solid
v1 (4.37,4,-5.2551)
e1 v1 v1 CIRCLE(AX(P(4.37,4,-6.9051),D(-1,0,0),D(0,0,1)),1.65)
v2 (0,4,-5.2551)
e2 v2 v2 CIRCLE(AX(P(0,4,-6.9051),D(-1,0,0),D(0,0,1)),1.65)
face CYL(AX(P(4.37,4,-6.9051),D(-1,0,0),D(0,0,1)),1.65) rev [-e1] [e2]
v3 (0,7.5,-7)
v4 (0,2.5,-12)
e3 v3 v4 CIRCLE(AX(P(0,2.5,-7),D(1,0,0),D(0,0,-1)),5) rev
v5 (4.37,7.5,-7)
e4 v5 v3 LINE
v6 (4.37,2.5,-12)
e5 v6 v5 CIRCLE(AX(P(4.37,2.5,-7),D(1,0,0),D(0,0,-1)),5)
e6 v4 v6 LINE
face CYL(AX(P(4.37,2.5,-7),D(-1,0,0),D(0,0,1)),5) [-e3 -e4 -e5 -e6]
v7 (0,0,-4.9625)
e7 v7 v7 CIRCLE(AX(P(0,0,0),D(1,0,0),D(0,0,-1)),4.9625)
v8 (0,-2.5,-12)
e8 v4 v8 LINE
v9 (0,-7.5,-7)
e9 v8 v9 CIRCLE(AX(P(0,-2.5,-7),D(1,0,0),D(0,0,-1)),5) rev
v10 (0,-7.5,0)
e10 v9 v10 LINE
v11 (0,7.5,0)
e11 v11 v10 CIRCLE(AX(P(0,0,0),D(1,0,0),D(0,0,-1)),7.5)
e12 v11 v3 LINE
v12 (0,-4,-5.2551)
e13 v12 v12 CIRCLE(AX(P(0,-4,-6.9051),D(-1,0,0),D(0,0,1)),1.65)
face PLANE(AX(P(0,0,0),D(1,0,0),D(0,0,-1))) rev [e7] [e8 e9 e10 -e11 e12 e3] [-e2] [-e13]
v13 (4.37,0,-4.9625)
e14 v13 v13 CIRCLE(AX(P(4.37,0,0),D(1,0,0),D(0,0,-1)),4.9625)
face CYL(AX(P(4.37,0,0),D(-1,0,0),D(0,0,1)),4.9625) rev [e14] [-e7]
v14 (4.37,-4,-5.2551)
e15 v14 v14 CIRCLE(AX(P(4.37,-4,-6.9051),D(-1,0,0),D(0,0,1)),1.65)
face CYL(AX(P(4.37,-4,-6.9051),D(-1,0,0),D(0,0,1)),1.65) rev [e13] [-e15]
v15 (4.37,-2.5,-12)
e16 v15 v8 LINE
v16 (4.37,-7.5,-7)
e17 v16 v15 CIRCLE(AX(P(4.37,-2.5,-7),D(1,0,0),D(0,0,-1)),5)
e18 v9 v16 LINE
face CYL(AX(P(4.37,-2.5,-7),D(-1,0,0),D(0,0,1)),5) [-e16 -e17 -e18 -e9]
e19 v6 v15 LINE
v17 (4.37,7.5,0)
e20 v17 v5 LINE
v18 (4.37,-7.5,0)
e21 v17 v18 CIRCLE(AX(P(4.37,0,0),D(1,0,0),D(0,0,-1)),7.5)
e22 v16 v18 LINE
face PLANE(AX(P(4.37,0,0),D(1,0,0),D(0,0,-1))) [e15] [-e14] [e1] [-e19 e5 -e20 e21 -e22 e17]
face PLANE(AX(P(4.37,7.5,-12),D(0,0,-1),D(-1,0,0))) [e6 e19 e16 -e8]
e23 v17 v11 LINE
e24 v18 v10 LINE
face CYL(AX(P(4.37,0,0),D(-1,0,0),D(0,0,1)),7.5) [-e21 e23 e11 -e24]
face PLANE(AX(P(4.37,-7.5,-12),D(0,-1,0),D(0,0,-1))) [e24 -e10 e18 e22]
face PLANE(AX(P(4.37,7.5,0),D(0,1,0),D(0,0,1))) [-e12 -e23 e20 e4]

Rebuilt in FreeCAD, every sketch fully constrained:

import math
import FreeCAD as App
import Part
import Sketcher

V = App.Vector
Q = App.Units.Quantity


def edges_at(feature, points):
    """Names of the edges that pass closest to the given points."""
    edges = feature.Shape.Edges
    near = lambda p: min(range(len(edges)), key=lambda i: edges[i].distToShape(Part.Vertex(*p))[0])
    return sorted({f"Edge{near(p) + 1}" for p in points})

doc = App.newDocument("Part")
body = doc.addObject("PartDesign::Body", "Body")

# Sketch on YZ plane
sketch1 = body.newObject("Sketcher::SketchObject", "Sketch")
sketch1.AttachmentSupport = (doc.getObject("YZ_Plane"), [""])
sketch1.MapMode = "FlatFace"
sketch1.addGeometry([
    Part.LineSegment(V(7.5, -12, 0), V(7.5, 0, 0)),  # 0
    Part.ArcOfCircle(Part.Circle(V(0, 0, 0), V(0, 0, 1), 7.5), math.radians(0), math.radians(180)),  # 1
    Part.LineSegment(V(-7.5, 0, 0), V(-7.5, -12, 0)),  # 2
    Part.LineSegment(V(-7.5, -12, 0), V(7.5, -12, 0)),  # 3
    Part.Circle(V(0, 0, 0), V(0, 0, 1), 5),  # 4
], False)
sketch1.addConstraint([
    Sketcher.Constraint("Tangent", 0, 2, 1, 1),
    Sketcher.Constraint("Tangent", 1, 2, 2, 1),
    Sketcher.Constraint("Coincident", 2, 2, 3, 1),
    Sketcher.Constraint("Coincident", 3, 2, 0, 1),
    Sketcher.Constraint("Vertical", 0),
    Sketcher.Constraint("Vertical", 2),
    Sketcher.Constraint("Horizontal", 3),
    Sketcher.Constraint("Coincident", 1, 3, -1, 1),
    Sketcher.Constraint("Coincident", 4, 3, -1, 1),
    Sketcher.Constraint("Radius", 1, Q("7.5 mm")),
    Sketcher.Constraint("DistanceY", 0, 1, 0, 2, Q("12 mm")),
    Sketcher.Constraint("Diameter", 4, Q("9.925 mm")),
])
pad1 = body.newObject("PartDesign::Pad", "Pad")
pad1.Profile = sketch1
pad1.Length = 4.37
doc.recompute()

fillet = body.newObject("PartDesign::Fillet", "Fillet")
fillet.Base = (pad1, edges_at(pad1, [(2.185, -7.5, -12), (2.185, 7.5, -12)]))
fillet.Radius = 5

# Sketch on YZ plane
sketch2 = body.newObject("Sketcher::SketchObject", "Sketch001")
sketch2.AttachmentSupport = (doc.getObject("YZ_Plane"), [""])
sketch2.MapMode = "FlatFace"
sketch2.addGeometry([
    Part.Circle(V(4, -6.9, 0), V(0, 0, 1), 1.6),
    Part.Circle(V(-4, -6.9, 0), V(0, 0, 1), 1.6),
], False)
sketch2.addConstraint([
    Sketcher.Constraint("Equal", 0, 1),
    Sketcher.Constraint("Symmetric", 0, 3, 1, 3, -2),
    Sketcher.Constraint("Diameter", 0, Q("3.3 mm")),
    Sketcher.Constraint("DistanceX", -1, 1, 0, 3, Q("4 mm")),
    Sketcher.Constraint("DistanceY", 0, 3, -1, 1, Q("6.9051 mm")),
])
pocket1 = body.newObject("PartDesign::Pocket", "Pocket")
pocket1.Profile = sketch2
pocket1.Type = "ThroughAll"
pocket1.Reversed = True

doc.recompute()
